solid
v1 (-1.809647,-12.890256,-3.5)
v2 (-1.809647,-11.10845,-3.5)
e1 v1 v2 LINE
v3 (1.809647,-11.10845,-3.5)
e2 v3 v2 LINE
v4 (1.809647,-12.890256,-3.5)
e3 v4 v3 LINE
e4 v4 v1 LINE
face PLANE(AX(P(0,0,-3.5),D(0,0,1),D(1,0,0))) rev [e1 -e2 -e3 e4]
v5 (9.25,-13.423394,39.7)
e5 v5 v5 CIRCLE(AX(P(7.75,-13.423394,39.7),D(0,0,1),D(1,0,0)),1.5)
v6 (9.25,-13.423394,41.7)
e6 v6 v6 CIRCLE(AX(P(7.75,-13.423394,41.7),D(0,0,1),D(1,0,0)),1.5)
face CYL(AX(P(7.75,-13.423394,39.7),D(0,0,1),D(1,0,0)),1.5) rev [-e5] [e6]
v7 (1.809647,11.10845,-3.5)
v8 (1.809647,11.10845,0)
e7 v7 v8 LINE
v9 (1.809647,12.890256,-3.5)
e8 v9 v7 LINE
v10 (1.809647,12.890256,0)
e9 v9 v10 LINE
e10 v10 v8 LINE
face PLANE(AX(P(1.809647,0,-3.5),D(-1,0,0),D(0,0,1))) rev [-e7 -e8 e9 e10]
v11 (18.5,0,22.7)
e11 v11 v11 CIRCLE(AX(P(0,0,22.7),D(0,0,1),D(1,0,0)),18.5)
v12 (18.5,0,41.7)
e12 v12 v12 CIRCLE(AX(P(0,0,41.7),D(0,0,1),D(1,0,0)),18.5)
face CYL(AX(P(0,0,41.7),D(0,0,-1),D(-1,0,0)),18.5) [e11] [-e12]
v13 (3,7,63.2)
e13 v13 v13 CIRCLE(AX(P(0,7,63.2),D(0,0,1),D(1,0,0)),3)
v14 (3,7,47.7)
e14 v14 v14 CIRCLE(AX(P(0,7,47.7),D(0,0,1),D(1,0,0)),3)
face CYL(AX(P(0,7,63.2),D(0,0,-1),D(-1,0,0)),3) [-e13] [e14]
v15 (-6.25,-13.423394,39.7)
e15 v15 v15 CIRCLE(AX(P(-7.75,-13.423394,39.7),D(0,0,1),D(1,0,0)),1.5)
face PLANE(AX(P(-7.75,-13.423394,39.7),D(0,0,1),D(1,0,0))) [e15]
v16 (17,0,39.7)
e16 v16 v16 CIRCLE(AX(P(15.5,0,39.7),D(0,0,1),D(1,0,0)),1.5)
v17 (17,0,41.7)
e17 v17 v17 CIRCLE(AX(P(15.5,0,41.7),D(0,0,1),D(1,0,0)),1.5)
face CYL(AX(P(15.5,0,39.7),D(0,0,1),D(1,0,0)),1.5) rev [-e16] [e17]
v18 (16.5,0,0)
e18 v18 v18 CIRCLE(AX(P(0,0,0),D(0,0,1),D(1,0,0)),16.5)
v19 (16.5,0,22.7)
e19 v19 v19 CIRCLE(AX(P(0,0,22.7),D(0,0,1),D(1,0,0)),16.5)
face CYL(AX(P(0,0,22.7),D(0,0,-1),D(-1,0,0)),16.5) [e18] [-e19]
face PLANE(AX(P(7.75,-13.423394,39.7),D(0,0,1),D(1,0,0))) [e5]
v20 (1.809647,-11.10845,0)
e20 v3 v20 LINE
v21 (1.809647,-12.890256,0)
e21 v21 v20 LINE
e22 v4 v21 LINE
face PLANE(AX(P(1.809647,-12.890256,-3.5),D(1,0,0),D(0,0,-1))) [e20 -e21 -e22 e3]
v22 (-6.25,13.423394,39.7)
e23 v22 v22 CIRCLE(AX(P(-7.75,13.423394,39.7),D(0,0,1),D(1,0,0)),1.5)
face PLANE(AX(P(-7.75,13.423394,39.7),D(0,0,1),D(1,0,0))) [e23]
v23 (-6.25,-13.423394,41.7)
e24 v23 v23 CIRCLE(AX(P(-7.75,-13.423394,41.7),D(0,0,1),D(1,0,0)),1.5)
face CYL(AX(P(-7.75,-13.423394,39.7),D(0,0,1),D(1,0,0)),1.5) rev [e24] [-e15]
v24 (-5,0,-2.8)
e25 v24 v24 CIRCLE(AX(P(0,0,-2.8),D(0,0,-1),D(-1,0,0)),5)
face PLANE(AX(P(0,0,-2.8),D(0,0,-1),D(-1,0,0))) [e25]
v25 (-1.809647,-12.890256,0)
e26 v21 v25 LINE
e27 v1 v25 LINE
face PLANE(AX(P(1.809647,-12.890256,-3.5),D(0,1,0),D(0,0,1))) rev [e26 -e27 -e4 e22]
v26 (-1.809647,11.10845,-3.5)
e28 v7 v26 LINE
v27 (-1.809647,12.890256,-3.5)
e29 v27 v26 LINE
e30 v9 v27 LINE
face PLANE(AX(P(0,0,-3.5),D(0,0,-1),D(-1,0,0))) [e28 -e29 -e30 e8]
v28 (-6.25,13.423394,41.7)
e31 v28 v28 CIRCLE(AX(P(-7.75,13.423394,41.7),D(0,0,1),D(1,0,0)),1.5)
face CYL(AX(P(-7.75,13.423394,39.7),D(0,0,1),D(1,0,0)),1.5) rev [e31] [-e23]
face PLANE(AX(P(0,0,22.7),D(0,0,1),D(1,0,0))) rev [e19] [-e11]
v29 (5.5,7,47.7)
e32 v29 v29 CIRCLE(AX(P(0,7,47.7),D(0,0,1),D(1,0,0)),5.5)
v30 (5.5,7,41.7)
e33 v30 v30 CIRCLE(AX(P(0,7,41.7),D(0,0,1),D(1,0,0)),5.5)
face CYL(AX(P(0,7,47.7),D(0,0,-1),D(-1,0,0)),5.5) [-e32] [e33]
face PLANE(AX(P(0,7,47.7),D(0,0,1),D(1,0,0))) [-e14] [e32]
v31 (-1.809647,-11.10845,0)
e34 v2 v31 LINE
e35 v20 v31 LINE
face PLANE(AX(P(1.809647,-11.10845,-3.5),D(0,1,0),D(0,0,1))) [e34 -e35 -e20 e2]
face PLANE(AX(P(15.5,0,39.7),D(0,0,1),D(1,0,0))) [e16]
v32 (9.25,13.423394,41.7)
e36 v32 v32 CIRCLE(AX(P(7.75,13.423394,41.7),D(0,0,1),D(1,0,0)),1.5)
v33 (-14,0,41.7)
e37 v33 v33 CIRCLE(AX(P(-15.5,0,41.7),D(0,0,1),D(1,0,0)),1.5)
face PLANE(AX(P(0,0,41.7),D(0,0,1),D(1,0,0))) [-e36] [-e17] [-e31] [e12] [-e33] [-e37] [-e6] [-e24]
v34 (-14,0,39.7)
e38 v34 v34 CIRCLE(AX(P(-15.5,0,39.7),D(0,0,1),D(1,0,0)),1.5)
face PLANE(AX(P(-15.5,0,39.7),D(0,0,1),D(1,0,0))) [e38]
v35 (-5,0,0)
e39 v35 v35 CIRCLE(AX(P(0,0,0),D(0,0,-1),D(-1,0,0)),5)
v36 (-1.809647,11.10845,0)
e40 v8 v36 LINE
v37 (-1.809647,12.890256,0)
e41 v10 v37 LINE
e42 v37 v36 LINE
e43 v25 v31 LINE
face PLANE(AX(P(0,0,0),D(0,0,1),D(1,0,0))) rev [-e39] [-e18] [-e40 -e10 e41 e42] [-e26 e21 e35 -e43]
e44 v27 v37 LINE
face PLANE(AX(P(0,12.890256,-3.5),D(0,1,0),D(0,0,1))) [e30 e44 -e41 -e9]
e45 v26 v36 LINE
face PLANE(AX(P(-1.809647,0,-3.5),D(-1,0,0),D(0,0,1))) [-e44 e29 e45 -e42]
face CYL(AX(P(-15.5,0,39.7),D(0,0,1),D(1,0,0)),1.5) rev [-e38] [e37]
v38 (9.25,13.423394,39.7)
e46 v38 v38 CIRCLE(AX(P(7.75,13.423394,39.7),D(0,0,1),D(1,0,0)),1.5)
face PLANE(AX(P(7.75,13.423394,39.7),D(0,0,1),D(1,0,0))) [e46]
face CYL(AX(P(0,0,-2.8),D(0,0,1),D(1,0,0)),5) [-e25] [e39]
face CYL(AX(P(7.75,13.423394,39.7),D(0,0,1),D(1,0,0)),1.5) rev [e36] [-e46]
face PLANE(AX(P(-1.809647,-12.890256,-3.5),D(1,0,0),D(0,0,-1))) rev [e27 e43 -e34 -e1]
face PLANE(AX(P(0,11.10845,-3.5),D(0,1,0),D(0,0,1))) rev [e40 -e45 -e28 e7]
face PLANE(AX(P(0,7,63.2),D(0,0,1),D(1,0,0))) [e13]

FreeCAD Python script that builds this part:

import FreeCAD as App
import Part
import Sketcher
Q = App.Units.Quantity


def add_polygon(sketch, points):
    """Adds a closed chain of lines whose ends are joined by coincident constraints."""
    first, n = sketch.GeometryCount, len(points)
    for a, b in zip(points, points[1:] + points[:1]):
        sketch.addGeometry(Part.LineSegment(App.Vector(*a, 0), App.Vector(*b, 0)), False)
    for i in range(n):
        sketch.addConstraint(Sketcher.Constraint("Coincident", first + i, 2, first + (i + 1) % n, 1))

doc = App.newDocument("Part")
body = doc.addObject("PartDesign::Body", "Body")

# Sketch on XY plane
sketch1 = body.newObject("Sketcher::SketchObject", "Sketch")
sketch1.AttachmentSupport = (doc.getObject("XY_Plane"), [""])
sketch1.MapMode = "FlatFace"
sketch1.addGeometry(Part.Circle(App.Vector(0, 0, 0), App.Vector(0, 0, 1), 16), False)
sketch1.addConstraint([
    Sketcher.Constraint("Coincident", 0, 3, -1, 1),
    Sketcher.Constraint("Diameter", 0, Q("33 mm")),
])
pad1 = body.newObject("PartDesign::Pad", "Pad")
pad1.Profile = sketch1
pad1.Length = 22.7

# Sketch on XY plane
sketch2 = body.newObject("Sketcher::SketchObject", "Sketch001")
sketch2.AttachmentSupport = (doc.getObject("XY_Plane"), [""])
sketch2.MapMode = "FlatFace"
sketch2.AttachmentOffset = App.Placement(App.Vector(0, 0, 22.7), App.Rotation())
sketch2.addGeometry(Part.Circle(App.Vector(0, 0, 0), App.Vector(0, 0, 1), 18), False)
sketch2.addConstraint([
    Sketcher.Constraint("Coincident", 0, 3, -1, 1),
    Sketcher.Constraint("Diameter", 0, Q("37 mm")),
])
pad2 = body.newObject("PartDesign::Pad", "Pad001")
pad2.Profile = sketch2
pad2.Length = 19

# Sketch on XY plane
sketch3 = body.newObject("Sketcher::SketchObject", "Sketch002")
sketch3.AttachmentSupport = (doc.getObject("XY_Plane"), [""])
sketch3.MapMode = "FlatFace"
sketch3.AttachmentOffset = App.Placement(App.Vector(0, 0, 41.7), App.Rotation())
sketch3.addGeometry([
    Part.Circle(App.Vector(15.5, 0, 0), App.Vector(0, 0, 1), 1.5),  # 0
    Part.Circle(App.Vector(7.8, -13.4, 0), App.Vector(0, 0, 1), 1.5),  # 1
    Part.Circle(App.Vector(-7.8, -13.4, 0), App.Vector(0, 0, 1), 1.5),  # 2
    Part.Circle(App.Vector(-15.5, 0, 0), App.Vector(0, 0, 1), 1.5),  # 3
    Part.Circle(App.Vector(-7.8, 13.4, 0), App.Vector(0, 0, 1), 1.5),  # 4
    Part.Circle(App.Vector(7.8, 13.4, 0), App.Vector(0, 0, 1), 1.5),  # 5
], False)
sketch3.addConstraint([
    Sketcher.Constraint("Equal", 0, 1),
    Sketcher.Constraint("Equal", 1, 2),
    Sketcher.Constraint("Equal", 2, 3),
    Sketcher.Constraint("Equal", 3, 4),
    Sketcher.Constraint("Equal", 4, 5),
    Sketcher.Constraint("Symmetric", 0, 3, 3, 3, -1, 1),
    Sketcher.Constraint("Symmetric", 1, 3, 4, 3, -1, 1),
    Sketcher.Constraint("Symmetric", 2, 3, 5, 3, -1, 1),
    Sketcher.Constraint("Symmetric", 1, 3, 2, 3, -2),
    Sketcher.Constraint("PointOnObject", 0, 3, -1),
    Sketcher.Constraint("Diameter", 0, Q("3 mm")),
    Sketcher.Constraint("DistanceX", 3, 3, 0, 3, Q("31 mm")),
    Sketcher.Constraint("DistanceX", 2, 3, 1, 3, Q("15.5 mm")),
    Sketcher.Constraint("DistanceY", 1, 3, -1, 1, Q("13.423394 mm")),
])
pocket1 = body.newObject("PartDesign::Pocket", "Pocket")
pocket1.Profile = sketch3
pocket1.Length = 2

# Sketch on XY plane
sketch4 = body.newObject("Sketcher::SketchObject", "Sketch003")
sketch4.AttachmentSupport = (doc.getObject("XY_Plane"), [""])
sketch4.MapMode = "FlatFace"
sketch4.AttachmentOffset = App.Placement(App.Vector(0, 0, 41.7), App.Rotation())
sketch4.addGeometry(Part.Circle(App.Vector(0, 7, 0), App.Vector(0, 0, 1), 6), False)
sketch4.addConstraint([
    Sketcher.Constraint("PointOnObject", 0, 3, -2),
    Sketcher.Constraint("Diameter", 0, Q("11 mm")),
    Sketcher.Constraint("DistanceY", -1, 1, 0, 3, Q("7 mm")),
])
pad3 = body.newObject("PartDesign::Pad", "Pad002")
pad3.Profile = sketch4
pad3.Length = 6

# Sketch on XY plane
sketch5 = body.newObject("Sketcher::SketchObject", "Sketch004")
sketch5.AttachmentSupport = (doc.getObject("XY_Plane"), [""])
sketch5.MapMode = "FlatFace"
sketch5.AttachmentOffset = App.Placement(App.Vector(0, 0, 47.7), App.Rotation())
sketch5.addGeometry(Part.Circle(App.Vector(0, 7, 0), App.Vector(0, 0, 1), 3), False)
sketch5.addConstraint([
    Sketcher.Constraint("PointOnObject", 0, 3, -2),
    Sketcher.Constraint("Diameter", 0, Q("6 mm")),
    Sketcher.Constraint("DistanceY", -1, 1, 0, 3, Q("7 mm")),
])
pad4 = body.newObject("PartDesign::Pad", "Pad003")
pad4.Profile = sketch5
pad4.Length = 15.5

# Sketch on XY plane
sketch6 = body.newObject("Sketcher::SketchObject", "Sketch005")
sketch6.AttachmentSupport = (doc.getObject("XY_Plane"), [""])
sketch6.MapMode = "FlatFace"
sketch6.addGeometry(Part.Circle(App.Vector(0, 0, 0), App.Vector(0, 0, 1), 5), False)
sketch6.addConstraint([
    Sketcher.Constraint("Coincident", 0, 3, -1, 1),
    Sketcher.Constraint("Diameter", 0, Q("10 mm")),
])
pad5 = body.newObject("PartDesign::Pad", "Pad004")
pad5.Profile = sketch6
pad5.Length = 2.8
pad5.Reversed = True

# Sketch on XY plane
sketch7 = body.newObject("Sketcher::SketchObject", "Sketch006")
sketch7.AttachmentSupport = (doc.getObject("XY_Plane"), [""])
sketch7.MapMode = "FlatFace"
add_polygon(sketch7, [(1.8, 12.9), (1.8, 11.1), (-1.8, 11.1), (-1.8, 12.9)])  # lines 0-3
add_polygon(sketch7, [(1.8, -11.1), (1.8, -12.9), (-1.8, -12.9), (-1.8, -11.1)])  # lines 4-7
sketch7.addConstraint([
    Sketcher.Constraint("Vertical", 0),
    Sketcher.Constraint("Horizontal", 1),
    Sketcher.Constraint("Vertical", 2),
    Sketcher.Constraint("Horizontal", 3),
    Sketcher.Constraint("Vertical", 4),
    Sketcher.Constraint("Horizontal", 5),
    Sketcher.Constraint("Vertical", 6),
    Sketcher.Constraint("Horizontal", 7),
    Sketcher.Constraint("Symmetric", 2, 2, 4, 2, -1, 1),
    Sketcher.Constraint("Symmetric", 0, 2, 6, 2, -1, 1),
    Sketcher.Constraint("Vertical", 3, 2, 4, 2),
    Sketcher.Constraint("DistanceY", 6, 2, 1, 2, Q("22.216899 mm")),
    Sketcher.Constraint("DistanceX", 1, 2, 1, 1, Q("3.619294 mm")),
    Sketcher.Constraint("DistanceY", 0, 2, 0, 1, Q("1.781806 mm")),
])
pad6 = body.newObject("PartDesign::Pad", "Pad005")
pad6.Profile = sketch7
pad6.Length = 3.5
pad6.Reversed = True

doc.recompute()
